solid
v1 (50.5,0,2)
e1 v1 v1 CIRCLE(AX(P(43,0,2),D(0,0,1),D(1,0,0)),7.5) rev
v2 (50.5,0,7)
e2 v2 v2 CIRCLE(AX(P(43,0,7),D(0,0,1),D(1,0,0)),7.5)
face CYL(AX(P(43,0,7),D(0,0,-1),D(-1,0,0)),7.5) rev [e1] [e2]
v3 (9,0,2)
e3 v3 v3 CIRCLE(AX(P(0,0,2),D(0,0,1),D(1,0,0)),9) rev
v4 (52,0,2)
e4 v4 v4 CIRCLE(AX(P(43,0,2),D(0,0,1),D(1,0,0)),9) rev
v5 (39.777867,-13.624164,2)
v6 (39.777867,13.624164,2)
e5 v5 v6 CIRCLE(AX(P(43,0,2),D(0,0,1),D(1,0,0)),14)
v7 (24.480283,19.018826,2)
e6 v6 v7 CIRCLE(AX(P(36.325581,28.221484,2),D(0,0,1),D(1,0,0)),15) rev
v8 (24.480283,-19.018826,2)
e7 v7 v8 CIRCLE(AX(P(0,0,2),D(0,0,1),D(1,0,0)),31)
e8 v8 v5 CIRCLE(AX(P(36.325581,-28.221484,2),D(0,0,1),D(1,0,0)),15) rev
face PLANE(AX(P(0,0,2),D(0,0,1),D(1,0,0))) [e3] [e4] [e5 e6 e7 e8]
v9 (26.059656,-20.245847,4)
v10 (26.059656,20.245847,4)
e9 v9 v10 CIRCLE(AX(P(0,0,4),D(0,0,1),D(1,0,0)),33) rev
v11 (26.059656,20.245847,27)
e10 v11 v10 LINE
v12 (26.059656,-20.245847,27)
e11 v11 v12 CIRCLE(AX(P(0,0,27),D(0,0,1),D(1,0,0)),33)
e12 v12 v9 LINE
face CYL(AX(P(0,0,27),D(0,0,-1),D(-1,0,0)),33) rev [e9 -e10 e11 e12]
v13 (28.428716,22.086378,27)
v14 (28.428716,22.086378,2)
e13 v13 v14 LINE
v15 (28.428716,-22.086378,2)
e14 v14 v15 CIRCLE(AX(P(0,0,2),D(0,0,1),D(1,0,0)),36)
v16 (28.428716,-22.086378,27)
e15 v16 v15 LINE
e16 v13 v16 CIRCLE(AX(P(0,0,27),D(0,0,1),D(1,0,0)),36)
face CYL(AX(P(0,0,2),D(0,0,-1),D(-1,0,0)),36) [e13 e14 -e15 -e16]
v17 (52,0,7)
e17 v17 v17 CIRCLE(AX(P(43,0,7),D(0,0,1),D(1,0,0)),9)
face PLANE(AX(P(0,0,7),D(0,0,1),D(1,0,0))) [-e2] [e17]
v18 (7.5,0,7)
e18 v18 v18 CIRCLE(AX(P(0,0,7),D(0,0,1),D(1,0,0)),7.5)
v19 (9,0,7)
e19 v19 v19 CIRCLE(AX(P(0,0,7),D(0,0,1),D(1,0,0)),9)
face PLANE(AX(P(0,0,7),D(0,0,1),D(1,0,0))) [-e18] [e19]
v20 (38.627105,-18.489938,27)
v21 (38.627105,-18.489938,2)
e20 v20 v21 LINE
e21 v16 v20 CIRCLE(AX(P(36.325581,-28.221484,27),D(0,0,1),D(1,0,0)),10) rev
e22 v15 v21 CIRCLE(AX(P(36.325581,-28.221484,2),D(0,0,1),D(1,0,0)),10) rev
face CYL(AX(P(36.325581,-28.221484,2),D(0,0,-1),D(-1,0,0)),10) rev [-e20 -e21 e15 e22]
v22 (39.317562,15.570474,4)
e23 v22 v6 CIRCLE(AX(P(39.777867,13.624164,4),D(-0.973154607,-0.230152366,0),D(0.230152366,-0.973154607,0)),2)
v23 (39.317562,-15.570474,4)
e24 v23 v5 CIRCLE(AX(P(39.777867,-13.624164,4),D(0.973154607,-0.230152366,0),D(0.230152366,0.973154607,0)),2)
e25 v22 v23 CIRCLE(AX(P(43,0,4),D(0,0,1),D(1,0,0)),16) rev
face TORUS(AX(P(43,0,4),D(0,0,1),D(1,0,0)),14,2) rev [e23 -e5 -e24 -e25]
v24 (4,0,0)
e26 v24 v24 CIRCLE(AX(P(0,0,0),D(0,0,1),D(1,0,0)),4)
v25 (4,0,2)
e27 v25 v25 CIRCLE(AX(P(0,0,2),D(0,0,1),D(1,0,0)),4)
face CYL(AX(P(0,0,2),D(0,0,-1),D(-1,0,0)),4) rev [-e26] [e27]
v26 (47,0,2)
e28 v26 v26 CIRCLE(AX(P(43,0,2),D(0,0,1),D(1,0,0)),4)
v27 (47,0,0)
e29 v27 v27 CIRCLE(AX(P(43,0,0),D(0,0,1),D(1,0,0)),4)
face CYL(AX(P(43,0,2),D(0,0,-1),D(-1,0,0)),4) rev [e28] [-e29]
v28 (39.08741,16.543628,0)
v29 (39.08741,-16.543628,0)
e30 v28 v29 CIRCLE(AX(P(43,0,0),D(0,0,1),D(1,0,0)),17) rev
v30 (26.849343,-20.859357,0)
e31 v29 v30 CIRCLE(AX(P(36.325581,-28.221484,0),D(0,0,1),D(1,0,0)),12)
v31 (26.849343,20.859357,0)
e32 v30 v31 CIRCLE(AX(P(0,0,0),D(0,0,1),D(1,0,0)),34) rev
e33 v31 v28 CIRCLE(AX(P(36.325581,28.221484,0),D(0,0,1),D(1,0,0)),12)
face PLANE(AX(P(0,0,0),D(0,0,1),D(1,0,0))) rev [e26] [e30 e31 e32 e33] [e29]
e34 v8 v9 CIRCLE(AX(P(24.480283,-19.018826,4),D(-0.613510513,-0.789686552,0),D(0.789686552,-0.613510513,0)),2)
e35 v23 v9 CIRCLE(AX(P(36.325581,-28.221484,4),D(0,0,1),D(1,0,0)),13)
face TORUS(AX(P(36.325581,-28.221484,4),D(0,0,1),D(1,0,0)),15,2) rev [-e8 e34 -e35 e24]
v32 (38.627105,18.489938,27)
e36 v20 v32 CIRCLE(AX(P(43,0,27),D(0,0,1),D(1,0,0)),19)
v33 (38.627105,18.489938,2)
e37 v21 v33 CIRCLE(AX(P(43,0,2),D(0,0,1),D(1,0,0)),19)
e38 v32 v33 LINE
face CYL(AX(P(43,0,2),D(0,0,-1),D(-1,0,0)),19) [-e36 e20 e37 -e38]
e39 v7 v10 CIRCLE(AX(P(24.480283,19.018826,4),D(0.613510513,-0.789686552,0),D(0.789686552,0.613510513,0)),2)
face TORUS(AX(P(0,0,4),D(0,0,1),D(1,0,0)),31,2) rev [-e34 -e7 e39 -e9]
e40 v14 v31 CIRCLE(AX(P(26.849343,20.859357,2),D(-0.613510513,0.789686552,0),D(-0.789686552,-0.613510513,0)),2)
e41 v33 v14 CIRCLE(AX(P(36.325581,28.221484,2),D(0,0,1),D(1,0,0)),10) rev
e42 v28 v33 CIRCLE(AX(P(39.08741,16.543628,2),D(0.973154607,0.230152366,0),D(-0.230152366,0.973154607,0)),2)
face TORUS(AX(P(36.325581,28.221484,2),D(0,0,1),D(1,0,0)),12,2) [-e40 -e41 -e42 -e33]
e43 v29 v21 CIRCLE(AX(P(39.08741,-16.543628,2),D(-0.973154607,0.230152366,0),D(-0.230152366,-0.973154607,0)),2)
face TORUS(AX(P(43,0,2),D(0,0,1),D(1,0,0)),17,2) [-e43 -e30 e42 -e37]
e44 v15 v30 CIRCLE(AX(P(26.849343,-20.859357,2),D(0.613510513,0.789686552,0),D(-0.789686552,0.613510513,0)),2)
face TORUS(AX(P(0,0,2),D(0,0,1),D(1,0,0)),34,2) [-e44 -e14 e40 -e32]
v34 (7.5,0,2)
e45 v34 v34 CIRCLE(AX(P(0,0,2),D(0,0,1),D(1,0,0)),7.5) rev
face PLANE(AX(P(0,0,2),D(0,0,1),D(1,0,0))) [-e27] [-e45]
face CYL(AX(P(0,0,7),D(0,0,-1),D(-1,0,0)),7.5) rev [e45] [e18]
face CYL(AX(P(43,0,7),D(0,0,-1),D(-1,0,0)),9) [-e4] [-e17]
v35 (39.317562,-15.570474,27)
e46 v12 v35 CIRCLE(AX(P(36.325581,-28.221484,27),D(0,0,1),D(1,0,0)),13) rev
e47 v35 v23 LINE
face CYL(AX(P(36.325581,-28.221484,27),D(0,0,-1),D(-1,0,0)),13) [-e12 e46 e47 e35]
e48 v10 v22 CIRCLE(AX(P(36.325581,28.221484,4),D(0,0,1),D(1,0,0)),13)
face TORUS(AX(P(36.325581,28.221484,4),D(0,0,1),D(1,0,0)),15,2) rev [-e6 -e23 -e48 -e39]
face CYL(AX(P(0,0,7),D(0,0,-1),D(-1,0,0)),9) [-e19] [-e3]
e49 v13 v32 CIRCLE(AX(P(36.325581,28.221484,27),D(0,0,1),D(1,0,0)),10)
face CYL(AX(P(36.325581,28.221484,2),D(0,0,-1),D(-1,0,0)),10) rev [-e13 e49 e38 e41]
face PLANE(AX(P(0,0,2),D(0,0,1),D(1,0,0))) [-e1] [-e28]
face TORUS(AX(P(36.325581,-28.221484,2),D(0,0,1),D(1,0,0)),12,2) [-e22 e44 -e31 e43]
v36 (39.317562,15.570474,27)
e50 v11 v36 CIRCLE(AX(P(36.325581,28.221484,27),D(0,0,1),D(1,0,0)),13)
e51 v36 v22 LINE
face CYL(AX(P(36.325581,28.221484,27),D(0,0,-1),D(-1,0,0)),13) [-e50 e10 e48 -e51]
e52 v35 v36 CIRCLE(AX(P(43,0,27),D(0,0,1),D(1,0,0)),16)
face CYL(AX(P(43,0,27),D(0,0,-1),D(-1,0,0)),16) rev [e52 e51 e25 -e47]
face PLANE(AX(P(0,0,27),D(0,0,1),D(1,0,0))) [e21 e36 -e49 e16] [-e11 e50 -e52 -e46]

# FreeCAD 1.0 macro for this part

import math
import FreeCAD as App
import Part
import Sketcher
from FreeCAD import Vector


def edges_at(feature, points):
    """Names of the edges that pass closest to the given points."""
    edges = feature.Shape.Edges
    near = lambda p: min(range(len(edges)), key=lambda i: edges[i].distToShape(Part.Vertex(*p))[0])
    return sorted({f"Edge{near(p) + 1}" for p in points})

doc = App.newDocument("Part")
params = doc.addObject("Spreadsheet::Sheet", "Params")
for row, (alias, value) in enumerate([
    ("sketch1_diameter", "8 mm"),
    ("sketch1_radius", "10 mm"),
    ("sketch1_radius2", "36 mm"),
    ("sketch1_radius3", "19 mm"),
    ("pad1_length", "2 mm"),
    ("sketch2_diameter", "18 mm"),
    ("sketch2_diameter2", "15 mm"),
    ("pad2_length", "7 mm"),
    ("sketch3_radius", "10 mm"),
    ("sketch3_radius2", "36 mm"),
    ("sketch3_radius3", "19 mm"),
    ("sketch3_radius4", "13 mm"),
    ("pad3_length", "27 mm"),
    ("fillet_radius", "2 mm"),
], start=1):
    params.set(f"A{row}", alias)
    params.set(f"B{row}", "=" + value)
    params.setAlias(f"B{row}", alias)

body = doc.addObject("PartDesign::Body", "Body")

# Sketch on XY plane
sketch1 = doc.addObject("Sketcher::SketchObject", "Sketch")
body.addObject(sketch1)
sketch1.AttachmentSupport = (doc.XY_Plane, [""])
sketch1.MapMode = "FlatFace"
sketch1.addGeometry([
    Part.ArcOfCircle(Part.Circle(Vector(36.3, 28.2, 0), Vector(0, 0, 1), 10), math.radians(-142), math.radians(-77)),  # 0
    Part.ArcOfCircle(Part.Circle(Vector(0, 0, 0), Vector(0, 0, 1), 36), math.radians(38), math.radians(322)),  # 1
    Part.ArcOfCircle(Part.Circle(Vector(36.3, -28.2, 0), Vector(0, 0, 1), 10), math.radians(77), math.radians(142)),  # 2
    Part.ArcOfCircle(Part.Circle(Vector(43, 0, 0), Vector(0, 0, 1), 19), math.radians(-103), math.radians(103)),  # 3
    Part.Circle(Vector(0, 0, 0), Vector(0, 0, 1), 4),  # 4
    Part.Circle(Vector(43, 0, 0), Vector(0, 0, 1), 4),  # 5
], False)
sketch1.addConstraint([
    Sketcher.Constraint("Tangent", 0, 1, 1, 1),
    Sketcher.Constraint("Tangent", 1, 2, 2, 2),
    Sketcher.Constraint("Tangent", 2, 1, 3, 1),
    Sketcher.Constraint("Tangent", 3, 2, 0, 2),
    Sketcher.Constraint("Coincident", 1, 3, -1, 1),
    Sketcher.Constraint("Coincident", 4, 3, -1, 1),
    Sketcher.Constraint("Coincident", 5, 3, 3, 3),
    Sketcher.Constraint("Equal", 0, 2),
    Sketcher.Constraint("Equal", 4, 5),
    Sketcher.Constraint("PointOnObject", 3, 3, -1),
    Sketcher.Constraint("Diameter", 4, 8.0),
    Sketcher.Constraint("Radius", 0, 10.0),
    Sketcher.Constraint("Radius", 1, 36.0),
    Sketcher.Constraint("Radius", 3, 19.0),
    Sketcher.Constraint("DistanceX", -1, 1, 3, 3, 43.0),
])
sketch1.setExpression("Constraints[10]", "Params.sketch1_diameter")
sketch1.setExpression("Constraints[11]", "Params.sketch1_radius")
sketch1.setExpression("Constraints[12]", "Params.sketch1_radius2")
sketch1.setExpression("Constraints[13]", "Params.sketch1_radius3")
pad1 = doc.addObject("PartDesign::Pad", "Pad")
body.addObject(pad1)
pad1.Profile = sketch1
pad1.setExpression("Length", "Params.pad1_length")

# Sketch on XY plane
sketch2 = doc.addObject("Sketcher::SketchObject", "Sketch001")
body.addObject(sketch2)
sketch2.AttachmentSupport = (doc.XY_Plane, [""])
sketch2.MapMode = "FlatFace"
sketch2.addGeometry([
    Part.Circle(Vector(0, 0, 0), Vector(0, 0, 1), 9),
    Part.Circle(Vector(0, 0, 0), Vector(0, 0, 1), 8),
    Part.Circle(Vector(43, 0, 0), Vector(0, 0, 1), 9),
    Part.Circle(Vector(43, 0, 0), Vector(0, 0, 1), 8),
], False)
sketch2.addConstraint([
    Sketcher.Constraint("Coincident", 0, 3, -1, 1),
    Sketcher.Constraint("Coincident", 1, 3, -1, 1),
    Sketcher.Constraint("Coincident", 3, 3, 2, 3),
    Sketcher.Constraint("Equal", 0, 2),
    Sketcher.Constraint("Equal", 1, 3),
    Sketcher.Constraint("PointOnObject", 2, 3, -1),
    Sketcher.Constraint("Diameter", 0, 18.0),
    Sketcher.Constraint("Diameter", 1, 15.0),
    Sketcher.Constraint("DistanceX", -1, 1, 2, 3, 43.0),
])
sketch2.setExpression("Constraints[6]", "Params.sketch2_diameter")
sketch2.setExpression("Constraints[7]", "Params.sketch2_diameter2")
pad2 = doc.addObject("PartDesign::Pad", "Pad001")
body.addObject(pad2)
pad2.Profile = sketch2
pad2.setExpression("Length", "Params.pad2_length")

# Sketch on XY plane
sketch3 = doc.addObject("Sketcher::SketchObject", "Sketch002")
body.addObject(sketch3)
sketch3.AttachmentSupport = (doc.XY_Plane, [""])
sketch3.MapMode = "FlatFace"
sketch3.addGeometry([
    Part.ArcOfCircle(Part.Circle(Vector(36, 28, 0), Vector(0, 0, 1), 10), math.radians(-142), math.radians(-77)),  # 0
    Part.ArcOfCircle(Part.Circle(Vector(0, 0, 0), Vector(0, 0, 1), 36), math.radians(38), math.radians(322)),  # 1
    Part.ArcOfCircle(Part.Circle(Vector(36, -28, 0), Vector(0, 0, 1), 10), math.radians(77), math.radians(142)),  # 2
    Part.ArcOfCircle(Part.Circle(Vector(43, 0, 0), Vector(0, 0, 1), 19), math.radians(-103), math.radians(103)),  # 3
    Part.ArcOfCircle(Part.Circle(Vector(36, 28, 0), Vector(0, 0, 1), 13), math.radians(-142), math.radians(-77)),  # 4
    Part.ArcOfCircle(Part.Circle(Vector(43, 0, 0), Vector(0, 0, 1), 16), math.radians(-103), math.radians(103)),  # 5
    Part.ArcOfCircle(Part.Circle(Vector(36, -28, 0), Vector(0, 0, 1), 13), math.radians(77), math.radians(142)),  # 6
    Part.ArcOfCircle(Part.Circle(Vector(0, 0, 0), Vector(0, 0, 1), 33), math.radians(38), math.radians(322)),  # 7
], False)
sketch3.addConstraint([
    Sketcher.Constraint("Tangent", 0, 1, 1, 1),
    Sketcher.Constraint("Tangent", 1, 2, 2, 2),
    Sketcher.Constraint("Tangent", 2, 1, 3, 1),
    Sketcher.Constraint("Tangent", 3, 2, 0, 2),
    Sketcher.Constraint("Tangent", 4, 2, 5, 2),
    Sketcher.Constraint("Tangent", 5, 1, 6, 1),
    Sketcher.Constraint("Tangent", 6, 2, 7, 2),
    Sketcher.Constraint("Tangent", 7, 1, 4, 1),
    Sketcher.Constraint("Coincident", 1, 3, -1, 1),
    Sketcher.Constraint("Coincident", 7, 3, -1, 1),
    Sketcher.Constraint("Coincident", 4, 3, 0, 3),
    Sketcher.Constraint("Coincident", 5, 3, 3, 3),
    Sketcher.Constraint("Equal", 0, 2),
    Sketcher.Constraint("Equal", 4, 6),
    Sketcher.Constraint("PointOnObject", 3, 3, -1),
    Sketcher.Constraint("Radius", 0, 10.0),
    Sketcher.Constraint("Radius", 1, 36.0),
    Sketcher.Constraint("Radius", 3, 19.0),
    Sketcher.Constraint("Radius", 4, 13.0),
    Sketcher.Constraint("DistanceX", -1, 1, 3, 3, 43.0),
])
sketch3.setExpression("Constraints[15]", "Params.sketch3_radius")
sketch3.setExpression("Constraints[16]", "Params.sketch3_radius2")
sketch3.setExpression("Constraints[17]", "Params.sketch3_radius3")
sketch3.setExpression("Constraints[18]", "Params.sketch3_radius4")
pad3 = doc.addObject("PartDesign::Pad", "Pad002")
body.addObject(pad3)
pad3.Profile = sketch3
pad3.setExpression("Length", "Params.pad3_length")
doc.recompute()

fillet = doc.addObject("PartDesign::Fillet", "Fillet")
body.addObject(fillet)
fillet.Base = (pad3, edges_at(pad3, [
    (-36, 0, 0),
    (33, 18.791, 0),
    (32.002, 15.961, 2),
    (-33, 0, 2),
    (59, 0, 2),
    (32.002, -15.961, 2),
    (62, 0, 0),
    (33, -18.791, 0),
]))
fillet.setExpression("Radius", "Params.fillet_radius")

doc.recompute()
